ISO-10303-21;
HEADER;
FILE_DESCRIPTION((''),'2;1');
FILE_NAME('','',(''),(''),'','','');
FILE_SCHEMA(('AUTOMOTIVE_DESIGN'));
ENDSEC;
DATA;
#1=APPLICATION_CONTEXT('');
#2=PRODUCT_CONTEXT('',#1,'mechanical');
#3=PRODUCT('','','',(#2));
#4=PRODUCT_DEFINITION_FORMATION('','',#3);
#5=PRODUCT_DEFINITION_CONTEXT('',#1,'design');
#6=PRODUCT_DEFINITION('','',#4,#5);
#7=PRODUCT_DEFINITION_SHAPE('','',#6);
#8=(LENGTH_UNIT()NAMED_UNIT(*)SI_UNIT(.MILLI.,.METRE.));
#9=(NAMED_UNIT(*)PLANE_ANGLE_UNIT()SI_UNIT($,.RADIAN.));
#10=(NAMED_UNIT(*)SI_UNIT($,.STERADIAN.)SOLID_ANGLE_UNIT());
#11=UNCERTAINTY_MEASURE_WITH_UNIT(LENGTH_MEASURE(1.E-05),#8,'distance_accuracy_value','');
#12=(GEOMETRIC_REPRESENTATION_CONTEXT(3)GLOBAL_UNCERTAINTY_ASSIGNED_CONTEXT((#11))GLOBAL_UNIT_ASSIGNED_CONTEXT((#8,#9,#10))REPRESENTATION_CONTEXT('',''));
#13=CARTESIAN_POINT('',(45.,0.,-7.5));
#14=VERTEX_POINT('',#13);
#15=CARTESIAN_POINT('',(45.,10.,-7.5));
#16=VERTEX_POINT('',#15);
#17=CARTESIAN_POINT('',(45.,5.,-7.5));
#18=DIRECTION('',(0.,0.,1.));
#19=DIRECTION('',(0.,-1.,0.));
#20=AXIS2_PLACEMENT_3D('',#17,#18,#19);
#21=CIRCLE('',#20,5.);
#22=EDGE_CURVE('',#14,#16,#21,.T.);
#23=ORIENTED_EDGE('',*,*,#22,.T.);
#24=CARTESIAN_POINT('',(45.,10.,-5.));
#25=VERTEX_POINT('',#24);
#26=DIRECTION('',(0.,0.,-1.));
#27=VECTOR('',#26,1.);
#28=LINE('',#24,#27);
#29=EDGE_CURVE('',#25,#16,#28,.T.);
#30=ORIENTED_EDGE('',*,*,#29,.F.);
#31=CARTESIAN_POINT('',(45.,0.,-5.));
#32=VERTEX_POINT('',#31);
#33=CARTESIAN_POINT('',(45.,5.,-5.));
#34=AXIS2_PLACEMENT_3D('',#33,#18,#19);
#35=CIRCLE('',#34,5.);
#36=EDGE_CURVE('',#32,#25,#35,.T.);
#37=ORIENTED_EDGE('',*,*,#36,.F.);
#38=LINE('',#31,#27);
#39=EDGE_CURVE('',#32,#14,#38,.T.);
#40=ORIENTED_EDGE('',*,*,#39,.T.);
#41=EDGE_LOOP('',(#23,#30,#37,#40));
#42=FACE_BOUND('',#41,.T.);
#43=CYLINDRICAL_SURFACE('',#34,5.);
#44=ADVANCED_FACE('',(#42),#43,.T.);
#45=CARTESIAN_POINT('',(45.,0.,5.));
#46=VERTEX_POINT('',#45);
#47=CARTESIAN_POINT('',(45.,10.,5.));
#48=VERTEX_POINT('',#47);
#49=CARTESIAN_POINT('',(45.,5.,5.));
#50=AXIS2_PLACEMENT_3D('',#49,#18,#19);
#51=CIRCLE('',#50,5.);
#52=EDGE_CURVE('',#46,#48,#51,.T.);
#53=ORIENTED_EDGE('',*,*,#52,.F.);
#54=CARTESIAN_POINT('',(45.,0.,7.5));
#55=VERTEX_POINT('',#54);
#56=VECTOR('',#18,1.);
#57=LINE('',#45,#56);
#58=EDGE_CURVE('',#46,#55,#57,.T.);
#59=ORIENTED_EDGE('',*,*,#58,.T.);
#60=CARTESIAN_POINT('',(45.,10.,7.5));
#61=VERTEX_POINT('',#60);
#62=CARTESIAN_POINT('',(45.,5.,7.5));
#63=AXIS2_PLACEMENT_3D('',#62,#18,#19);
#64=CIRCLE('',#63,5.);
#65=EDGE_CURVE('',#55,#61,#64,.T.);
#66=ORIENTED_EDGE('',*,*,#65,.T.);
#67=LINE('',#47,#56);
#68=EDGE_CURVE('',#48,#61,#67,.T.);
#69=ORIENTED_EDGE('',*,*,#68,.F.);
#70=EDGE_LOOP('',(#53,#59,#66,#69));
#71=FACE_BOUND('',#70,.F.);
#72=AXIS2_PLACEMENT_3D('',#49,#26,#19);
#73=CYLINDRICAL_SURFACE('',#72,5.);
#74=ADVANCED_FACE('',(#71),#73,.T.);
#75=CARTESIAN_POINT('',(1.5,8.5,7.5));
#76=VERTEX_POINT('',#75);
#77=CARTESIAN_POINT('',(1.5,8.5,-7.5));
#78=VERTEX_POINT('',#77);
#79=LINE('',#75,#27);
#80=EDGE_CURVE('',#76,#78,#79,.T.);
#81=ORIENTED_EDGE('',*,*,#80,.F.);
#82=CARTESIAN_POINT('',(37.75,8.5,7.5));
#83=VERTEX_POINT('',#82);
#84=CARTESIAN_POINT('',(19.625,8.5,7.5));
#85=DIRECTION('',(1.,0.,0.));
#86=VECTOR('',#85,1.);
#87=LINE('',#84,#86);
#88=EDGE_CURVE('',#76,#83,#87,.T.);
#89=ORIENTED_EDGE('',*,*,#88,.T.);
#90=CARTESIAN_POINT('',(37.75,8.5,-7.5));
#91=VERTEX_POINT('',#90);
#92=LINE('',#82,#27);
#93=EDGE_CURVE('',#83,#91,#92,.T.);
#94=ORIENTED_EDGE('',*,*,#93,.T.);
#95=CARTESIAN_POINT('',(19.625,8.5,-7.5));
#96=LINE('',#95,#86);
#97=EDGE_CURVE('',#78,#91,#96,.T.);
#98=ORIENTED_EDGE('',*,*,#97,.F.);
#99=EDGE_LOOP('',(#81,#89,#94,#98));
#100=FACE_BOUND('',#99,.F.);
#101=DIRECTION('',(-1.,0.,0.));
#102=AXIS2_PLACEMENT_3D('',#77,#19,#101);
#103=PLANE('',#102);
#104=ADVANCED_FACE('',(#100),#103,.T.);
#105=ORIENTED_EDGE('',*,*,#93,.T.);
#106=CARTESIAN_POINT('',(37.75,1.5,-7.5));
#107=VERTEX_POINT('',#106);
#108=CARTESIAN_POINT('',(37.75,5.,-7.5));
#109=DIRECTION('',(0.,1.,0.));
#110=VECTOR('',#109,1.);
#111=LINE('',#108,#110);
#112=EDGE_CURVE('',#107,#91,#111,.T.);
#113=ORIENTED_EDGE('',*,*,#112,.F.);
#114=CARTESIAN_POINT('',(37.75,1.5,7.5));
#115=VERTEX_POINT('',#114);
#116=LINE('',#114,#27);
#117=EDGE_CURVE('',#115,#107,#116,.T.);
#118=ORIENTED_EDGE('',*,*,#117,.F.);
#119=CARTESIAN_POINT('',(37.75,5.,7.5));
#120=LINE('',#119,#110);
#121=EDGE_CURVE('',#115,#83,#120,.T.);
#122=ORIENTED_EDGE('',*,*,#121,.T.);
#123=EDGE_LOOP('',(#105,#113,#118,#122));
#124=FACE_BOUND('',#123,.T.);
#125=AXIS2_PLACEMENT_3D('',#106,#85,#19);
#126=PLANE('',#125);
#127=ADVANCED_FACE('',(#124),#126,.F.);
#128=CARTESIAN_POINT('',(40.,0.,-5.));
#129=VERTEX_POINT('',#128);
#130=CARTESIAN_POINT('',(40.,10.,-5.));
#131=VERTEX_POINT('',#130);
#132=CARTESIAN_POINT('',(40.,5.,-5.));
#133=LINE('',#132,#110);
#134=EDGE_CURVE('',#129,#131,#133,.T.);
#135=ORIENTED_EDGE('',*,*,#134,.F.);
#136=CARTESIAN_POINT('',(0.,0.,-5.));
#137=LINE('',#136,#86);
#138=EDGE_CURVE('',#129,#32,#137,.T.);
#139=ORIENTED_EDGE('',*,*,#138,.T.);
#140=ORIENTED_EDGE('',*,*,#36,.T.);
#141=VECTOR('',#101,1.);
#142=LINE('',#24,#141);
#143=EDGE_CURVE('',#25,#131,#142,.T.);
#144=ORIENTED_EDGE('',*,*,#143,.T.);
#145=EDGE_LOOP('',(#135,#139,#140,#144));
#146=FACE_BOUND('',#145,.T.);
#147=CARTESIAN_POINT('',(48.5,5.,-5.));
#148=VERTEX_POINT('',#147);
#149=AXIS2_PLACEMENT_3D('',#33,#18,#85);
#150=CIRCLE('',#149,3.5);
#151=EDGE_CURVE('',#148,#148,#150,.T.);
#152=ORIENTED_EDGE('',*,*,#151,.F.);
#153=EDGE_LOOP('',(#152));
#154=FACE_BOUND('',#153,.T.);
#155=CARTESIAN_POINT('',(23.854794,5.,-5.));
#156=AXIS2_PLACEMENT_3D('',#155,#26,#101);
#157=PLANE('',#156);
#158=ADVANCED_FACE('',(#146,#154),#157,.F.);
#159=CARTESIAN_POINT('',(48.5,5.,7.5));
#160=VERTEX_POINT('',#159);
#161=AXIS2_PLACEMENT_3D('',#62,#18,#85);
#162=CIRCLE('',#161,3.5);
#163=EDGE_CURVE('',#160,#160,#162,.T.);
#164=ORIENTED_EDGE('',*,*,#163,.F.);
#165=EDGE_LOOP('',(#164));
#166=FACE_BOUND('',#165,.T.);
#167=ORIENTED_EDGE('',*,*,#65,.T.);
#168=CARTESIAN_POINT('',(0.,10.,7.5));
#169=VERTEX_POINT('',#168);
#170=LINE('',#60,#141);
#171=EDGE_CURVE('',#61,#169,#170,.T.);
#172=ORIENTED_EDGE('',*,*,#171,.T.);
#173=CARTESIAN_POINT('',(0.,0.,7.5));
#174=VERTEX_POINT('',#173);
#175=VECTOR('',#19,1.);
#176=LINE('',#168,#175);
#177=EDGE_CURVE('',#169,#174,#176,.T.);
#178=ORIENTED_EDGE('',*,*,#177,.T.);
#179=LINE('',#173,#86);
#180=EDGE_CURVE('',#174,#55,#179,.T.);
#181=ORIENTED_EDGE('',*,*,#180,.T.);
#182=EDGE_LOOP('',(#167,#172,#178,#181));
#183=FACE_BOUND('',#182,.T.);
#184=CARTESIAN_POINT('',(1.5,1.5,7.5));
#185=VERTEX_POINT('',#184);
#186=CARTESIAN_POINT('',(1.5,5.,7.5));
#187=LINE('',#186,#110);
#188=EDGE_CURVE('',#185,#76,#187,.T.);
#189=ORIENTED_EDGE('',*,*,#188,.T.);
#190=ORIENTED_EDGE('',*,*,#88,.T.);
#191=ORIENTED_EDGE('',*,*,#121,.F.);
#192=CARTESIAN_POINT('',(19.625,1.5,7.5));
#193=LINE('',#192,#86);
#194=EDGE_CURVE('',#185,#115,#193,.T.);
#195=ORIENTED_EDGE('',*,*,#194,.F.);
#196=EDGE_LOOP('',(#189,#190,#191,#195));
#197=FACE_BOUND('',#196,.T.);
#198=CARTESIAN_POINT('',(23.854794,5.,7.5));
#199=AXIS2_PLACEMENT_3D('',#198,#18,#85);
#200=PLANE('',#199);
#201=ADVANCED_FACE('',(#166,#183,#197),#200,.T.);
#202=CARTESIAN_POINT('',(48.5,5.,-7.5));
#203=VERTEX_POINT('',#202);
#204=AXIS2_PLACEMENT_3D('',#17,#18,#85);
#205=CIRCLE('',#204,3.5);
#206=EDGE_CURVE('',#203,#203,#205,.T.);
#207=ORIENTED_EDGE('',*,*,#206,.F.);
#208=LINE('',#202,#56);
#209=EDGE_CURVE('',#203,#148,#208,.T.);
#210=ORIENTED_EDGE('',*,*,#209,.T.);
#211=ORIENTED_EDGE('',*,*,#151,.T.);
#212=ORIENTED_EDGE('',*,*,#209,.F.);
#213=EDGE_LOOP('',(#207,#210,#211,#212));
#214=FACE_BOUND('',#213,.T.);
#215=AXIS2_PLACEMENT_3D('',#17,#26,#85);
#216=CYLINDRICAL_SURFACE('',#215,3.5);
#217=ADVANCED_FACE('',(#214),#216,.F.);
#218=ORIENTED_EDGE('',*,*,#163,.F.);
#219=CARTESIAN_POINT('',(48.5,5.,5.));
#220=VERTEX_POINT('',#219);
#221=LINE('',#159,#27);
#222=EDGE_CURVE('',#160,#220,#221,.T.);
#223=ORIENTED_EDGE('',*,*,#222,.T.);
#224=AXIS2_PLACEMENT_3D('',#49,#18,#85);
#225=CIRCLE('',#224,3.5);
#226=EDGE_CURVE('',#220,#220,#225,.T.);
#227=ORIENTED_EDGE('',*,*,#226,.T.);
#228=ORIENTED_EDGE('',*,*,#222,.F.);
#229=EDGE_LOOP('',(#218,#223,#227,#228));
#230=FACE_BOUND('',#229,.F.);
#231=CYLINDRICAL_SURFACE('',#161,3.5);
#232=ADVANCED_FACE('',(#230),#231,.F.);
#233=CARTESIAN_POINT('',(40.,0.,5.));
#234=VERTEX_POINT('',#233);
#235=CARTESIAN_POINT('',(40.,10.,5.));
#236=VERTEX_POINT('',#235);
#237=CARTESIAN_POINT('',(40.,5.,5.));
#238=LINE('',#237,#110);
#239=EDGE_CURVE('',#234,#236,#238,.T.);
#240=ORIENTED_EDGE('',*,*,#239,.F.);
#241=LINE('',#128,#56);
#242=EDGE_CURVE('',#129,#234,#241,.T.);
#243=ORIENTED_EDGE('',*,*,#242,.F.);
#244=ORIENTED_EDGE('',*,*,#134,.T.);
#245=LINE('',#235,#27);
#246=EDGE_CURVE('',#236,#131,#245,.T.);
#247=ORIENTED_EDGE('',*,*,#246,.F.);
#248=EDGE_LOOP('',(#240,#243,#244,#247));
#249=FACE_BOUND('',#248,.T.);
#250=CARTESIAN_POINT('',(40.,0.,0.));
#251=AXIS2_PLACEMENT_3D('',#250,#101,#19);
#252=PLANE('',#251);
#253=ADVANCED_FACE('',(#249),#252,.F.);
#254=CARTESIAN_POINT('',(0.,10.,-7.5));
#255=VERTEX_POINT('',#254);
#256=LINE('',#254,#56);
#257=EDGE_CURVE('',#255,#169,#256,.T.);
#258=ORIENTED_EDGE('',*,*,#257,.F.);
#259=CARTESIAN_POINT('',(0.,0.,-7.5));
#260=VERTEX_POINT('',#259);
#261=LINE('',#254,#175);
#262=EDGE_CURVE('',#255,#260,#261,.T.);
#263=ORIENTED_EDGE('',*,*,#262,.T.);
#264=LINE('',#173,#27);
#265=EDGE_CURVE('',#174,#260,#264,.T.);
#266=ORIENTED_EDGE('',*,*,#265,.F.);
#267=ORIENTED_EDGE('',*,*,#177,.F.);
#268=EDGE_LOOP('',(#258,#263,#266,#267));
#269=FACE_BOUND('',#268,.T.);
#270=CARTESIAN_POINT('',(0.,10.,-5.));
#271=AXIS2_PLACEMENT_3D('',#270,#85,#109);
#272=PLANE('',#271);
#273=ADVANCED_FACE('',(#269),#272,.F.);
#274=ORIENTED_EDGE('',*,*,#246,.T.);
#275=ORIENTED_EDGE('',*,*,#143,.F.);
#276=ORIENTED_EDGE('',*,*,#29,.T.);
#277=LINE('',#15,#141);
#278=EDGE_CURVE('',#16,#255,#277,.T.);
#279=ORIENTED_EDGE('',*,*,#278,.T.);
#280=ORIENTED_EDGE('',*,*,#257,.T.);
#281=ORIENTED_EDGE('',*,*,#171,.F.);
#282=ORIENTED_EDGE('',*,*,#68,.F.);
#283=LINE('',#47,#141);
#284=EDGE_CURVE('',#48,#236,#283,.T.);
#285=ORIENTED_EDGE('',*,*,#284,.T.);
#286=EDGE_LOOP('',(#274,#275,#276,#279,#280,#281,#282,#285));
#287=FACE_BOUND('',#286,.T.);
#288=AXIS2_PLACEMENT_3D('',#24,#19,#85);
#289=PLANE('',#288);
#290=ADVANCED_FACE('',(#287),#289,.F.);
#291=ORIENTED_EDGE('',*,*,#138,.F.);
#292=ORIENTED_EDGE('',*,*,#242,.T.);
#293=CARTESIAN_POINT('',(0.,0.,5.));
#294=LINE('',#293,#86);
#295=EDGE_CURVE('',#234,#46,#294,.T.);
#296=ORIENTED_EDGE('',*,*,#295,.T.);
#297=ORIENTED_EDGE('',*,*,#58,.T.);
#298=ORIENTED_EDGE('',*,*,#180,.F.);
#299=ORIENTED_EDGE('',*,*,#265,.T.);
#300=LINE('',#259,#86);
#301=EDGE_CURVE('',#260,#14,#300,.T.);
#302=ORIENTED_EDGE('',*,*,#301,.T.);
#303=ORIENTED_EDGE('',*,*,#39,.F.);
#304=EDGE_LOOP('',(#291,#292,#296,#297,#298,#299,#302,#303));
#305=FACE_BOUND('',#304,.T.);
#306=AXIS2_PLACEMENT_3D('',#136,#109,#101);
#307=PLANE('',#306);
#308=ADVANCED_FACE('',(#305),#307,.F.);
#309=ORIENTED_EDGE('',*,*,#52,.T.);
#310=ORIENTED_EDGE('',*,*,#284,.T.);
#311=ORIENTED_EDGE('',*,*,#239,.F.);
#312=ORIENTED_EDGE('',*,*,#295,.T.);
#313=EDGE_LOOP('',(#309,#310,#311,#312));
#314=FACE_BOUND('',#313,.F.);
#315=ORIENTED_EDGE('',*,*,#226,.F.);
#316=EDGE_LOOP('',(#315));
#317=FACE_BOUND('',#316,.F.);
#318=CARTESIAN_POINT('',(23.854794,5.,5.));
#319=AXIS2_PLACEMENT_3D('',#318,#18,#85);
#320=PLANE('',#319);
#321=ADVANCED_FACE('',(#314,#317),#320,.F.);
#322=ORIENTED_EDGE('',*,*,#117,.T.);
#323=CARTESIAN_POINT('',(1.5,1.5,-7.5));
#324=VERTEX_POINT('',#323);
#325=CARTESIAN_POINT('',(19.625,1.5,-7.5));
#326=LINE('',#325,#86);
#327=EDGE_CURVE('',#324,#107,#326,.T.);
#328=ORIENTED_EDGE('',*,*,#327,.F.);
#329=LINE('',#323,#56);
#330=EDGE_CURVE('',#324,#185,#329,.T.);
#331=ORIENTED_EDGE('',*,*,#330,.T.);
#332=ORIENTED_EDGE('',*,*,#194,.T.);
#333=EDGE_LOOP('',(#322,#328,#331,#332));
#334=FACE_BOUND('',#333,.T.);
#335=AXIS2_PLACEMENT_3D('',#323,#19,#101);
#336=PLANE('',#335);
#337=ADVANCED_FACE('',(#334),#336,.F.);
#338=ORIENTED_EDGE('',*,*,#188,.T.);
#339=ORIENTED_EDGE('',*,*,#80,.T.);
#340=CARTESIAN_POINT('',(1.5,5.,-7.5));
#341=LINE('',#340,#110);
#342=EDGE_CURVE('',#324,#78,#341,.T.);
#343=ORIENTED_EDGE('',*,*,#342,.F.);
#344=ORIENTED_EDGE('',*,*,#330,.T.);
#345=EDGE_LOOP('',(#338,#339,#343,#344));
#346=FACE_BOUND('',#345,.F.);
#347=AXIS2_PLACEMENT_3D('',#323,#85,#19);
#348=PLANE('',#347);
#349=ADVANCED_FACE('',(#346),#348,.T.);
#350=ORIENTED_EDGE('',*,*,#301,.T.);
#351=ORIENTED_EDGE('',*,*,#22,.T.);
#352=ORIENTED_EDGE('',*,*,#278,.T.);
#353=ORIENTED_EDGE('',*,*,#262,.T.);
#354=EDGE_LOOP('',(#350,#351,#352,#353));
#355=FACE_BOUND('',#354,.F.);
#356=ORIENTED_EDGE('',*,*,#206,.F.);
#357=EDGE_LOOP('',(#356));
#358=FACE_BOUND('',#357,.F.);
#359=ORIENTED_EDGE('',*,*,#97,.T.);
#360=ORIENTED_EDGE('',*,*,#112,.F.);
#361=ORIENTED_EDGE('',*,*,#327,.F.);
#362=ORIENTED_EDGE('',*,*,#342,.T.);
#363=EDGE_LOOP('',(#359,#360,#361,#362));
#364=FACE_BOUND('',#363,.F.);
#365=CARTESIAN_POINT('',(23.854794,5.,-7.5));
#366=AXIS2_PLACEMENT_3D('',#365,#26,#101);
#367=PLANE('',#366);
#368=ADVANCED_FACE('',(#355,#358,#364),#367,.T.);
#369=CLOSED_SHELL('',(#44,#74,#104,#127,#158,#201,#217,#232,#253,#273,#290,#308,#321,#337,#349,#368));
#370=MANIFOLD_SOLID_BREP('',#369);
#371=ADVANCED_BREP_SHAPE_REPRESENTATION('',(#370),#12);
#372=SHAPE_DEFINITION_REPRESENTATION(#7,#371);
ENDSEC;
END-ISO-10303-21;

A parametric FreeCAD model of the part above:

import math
import FreeCAD as App
import Part
import Sketcher
from FreeCAD import Vector
Q = App.Units.Quantity

doc = App.newDocument("Part")
body = doc.addObject("PartDesign::Body", "Body")

# Sketch on XY plane
sketch1 = body.newObject("Sketcher::SketchObject", "Sketch")
sketch1.AttachmentSupport = (doc.getObject("XY_Plane"), [""])
sketch1.MapMode = "FlatFace"
sketch1.addGeometry([
    Part.LineSegment(Vector(0, 10, 0), Vector(0, 0, 0)),
    Part.LineSegment(Vector(0, 0, 0), Vector(40, 0, 0)),
    Part.LineSegment(Vector(40, 0, 0), Vector(40, 10, 0)),
    Part.LineSegment(Vector(40, 10, 0), Vector(0, 10, 0)),
], False)
sketch1.addConstraint([
    Sketcher.Constraint("Coincident", 0, 2, 1, 1),
    Sketcher.Constraint("Coincident", 1, 2, 2, 1),
    Sketcher.Constraint("Coincident", 2, 2, 3, 1),
    Sketcher.Constraint("Coincident", 3, 2, 0, 1),
    Sketcher.Constraint("Vertical", 0),
    Sketcher.Constraint("Horizontal", 1),
    Sketcher.Constraint("Vertical", 2),
    Sketcher.Constraint("Horizontal", 3),
    Sketcher.Constraint("Coincident", 0, 2, -1, 1),
    Sketcher.Constraint("DistanceX", 1, 1, 1, 2, Q("40 mm")),
    Sketcher.Constraint("DistanceY", 0, 2, 0, 1, Q("10 mm")),
])
pad1 = body.newObject("PartDesign::Pad", "Pad")
pad1.Profile = sketch1
pad1.Length = 5

# Sketch on XY plane
sketch2 = body.newObject("Sketcher::SketchObject", "Sketch001")
sketch2.AttachmentSupport = (doc.getObject("XY_Plane"), [""])
sketch2.MapMode = "FlatFace"
sketch2.AttachmentOffset = App.Placement(Vector(0, 0, 5), App.Rotation())
sketch2.addGeometry([
    Part.ArcOfCircle(Part.Circle(Vector(45, 5, 0), Vector(0, 0, 1), 5), math.radians(-90), math.radians(90)),
    Part.LineSegment(Vector(45, 10, 0), Vector(0, 10, 0)),
    Part.LineSegment(Vector(0, 10, 0), Vector(0, 0, 0)),
    Part.LineSegment(Vector(0, 0, 0), Vector(45, 0, 0)),
], False)
sketch2.addConstraint([
    Sketcher.Constraint("Tangent", 0, 2, 1, 1),
    Sketcher.Constraint("Coincident", 1, 2, 2, 1),
    Sketcher.Constraint("Coincident", 2, 2, 3, 1),
    Sketcher.Constraint("Tangent", 3, 2, 0, 1),
    Sketcher.Constraint("Horizontal", 1),
    Sketcher.Constraint("Vertical", 2),
    Sketcher.Constraint("Horizontal", 3),
    Sketcher.Constraint("Coincident", 2, 2, -1, 1),
    Sketcher.Constraint("Radius", 0, Q("5 mm")),
    Sketcher.Constraint("DistanceX", 1, 2, 1, 1, Q("45 mm")),
])
pad2 = body.newObject("PartDesign::Pad", "Pad001")
pad2.Profile = sketch2
pad2.Length = 2.5

# Sketch on XY plane
sketch3 = body.newObject("Sketcher::SketchObject", "Sketch002")
sketch3.AttachmentSupport = (doc.getObject("XY_Plane"), [""])
sketch3.MapMode = "FlatFace"
sketch3.AttachmentOffset = App.Placement(Vector(0, 0, 7.5), App.Rotation())
sketch3.addGeometry(Part.Circle(Vector(45, 5, 0), Vector(0, 0, 1), 3.5), False)
sketch3.addConstraint([
    Sketcher.Constraint("Diameter", 0, Q("7 mm")),
    Sketcher.Constraint("DistanceX", -1, 1, 0, 3, Q("45 mm")),
    Sketcher.Constraint("DistanceY", -1, 1, 0, 3, Q("5 mm")),
])
pocket1 = body.newObject("PartDesign::Pocket", "Pocket")
pocket1.Profile = sketch3
pocket1.Type = "ThroughAll"

# Sketch on XY plane
sketch4 = body.newObject("Sketcher::SketchObject", "Sketch003")
sketch4.AttachmentSupport = (doc.getObject("XY_Plane"), [""])
sketch4.MapMode = "FlatFace"
sketch4.AttachmentOffset = App.Placement(Vector(0, 0, 7.5), App.Rotation())
sketch4.addGeometry([
    Part.LineSegment(Vector(2, 8, 0), Vector(2, 2, 0)),
    Part.LineSegment(Vector(2, 2, 0), Vector(38, 2, 0)),
    Part.LineSegment(Vector(38, 2, 0), Vector(38, 8, 0)),
    Part.LineSegment(Vector(38, 8, 0), Vector(2, 8, 0)),
], False)
sketch4.addConstraint([
    Sketcher.Constraint("Coincident", 0, 2, 1, 1),
    Sketcher.Constraint("Coincident", 1, 2, 2, 1),
    Sketcher.Constraint("Coincident", 2, 2, 3, 1),
    Sketcher.Constraint("Coincident", 3, 2, 0, 1),
    Sketcher.Constraint("Vertical", 0),
    Sketcher.Constraint("Horizontal", 1),
    Sketcher.Constraint("Vertical", 2),
    Sketcher.Constraint("Horizontal", 3),
    Sketcher.Constraint("DistanceY", 0, 2, 0, 1, Q("7 mm")),
    Sketcher.Constraint("DistanceX", 1, 1, 1, 2, Q("36.25 mm")),
    Sketcher.Constraint("DistanceX", -1, 1, 0, 2, Q("1.5 mm")),
    Sketcher.Constraint("DistanceY", -1, 1, 0, 2, Q("1.5 mm")),
])
pocket2 = body.newObject("PartDesign::Pocket", "Pocket001")
pocket2.Profile = sketch4
pocket2.Type = "ThroughAll"
body2 = doc.addObject("PartDesign::Body", "Body001")
doc.recompute()

body2.BaseFeature = body
doc.recompute()

mirroring = doc.addObject("Part::Mirroring", "Mirroring")
mirroring.Source = body
mirroring.Base = Vector(0, 0, 0)
mirroring.Normal = Vector(0, 0, 1)
body3 = doc.addObject("PartDesign::Body", "Body002")
body3.BaseFeature = mirroring
boolean = body2.newObject("PartDesign::Boolean", "Boolean")
boolean.Type = "Fuse"
boolean.addObjects([body3])
doc.recompute()
mirroring.Visibility = False

doc.recompute()
